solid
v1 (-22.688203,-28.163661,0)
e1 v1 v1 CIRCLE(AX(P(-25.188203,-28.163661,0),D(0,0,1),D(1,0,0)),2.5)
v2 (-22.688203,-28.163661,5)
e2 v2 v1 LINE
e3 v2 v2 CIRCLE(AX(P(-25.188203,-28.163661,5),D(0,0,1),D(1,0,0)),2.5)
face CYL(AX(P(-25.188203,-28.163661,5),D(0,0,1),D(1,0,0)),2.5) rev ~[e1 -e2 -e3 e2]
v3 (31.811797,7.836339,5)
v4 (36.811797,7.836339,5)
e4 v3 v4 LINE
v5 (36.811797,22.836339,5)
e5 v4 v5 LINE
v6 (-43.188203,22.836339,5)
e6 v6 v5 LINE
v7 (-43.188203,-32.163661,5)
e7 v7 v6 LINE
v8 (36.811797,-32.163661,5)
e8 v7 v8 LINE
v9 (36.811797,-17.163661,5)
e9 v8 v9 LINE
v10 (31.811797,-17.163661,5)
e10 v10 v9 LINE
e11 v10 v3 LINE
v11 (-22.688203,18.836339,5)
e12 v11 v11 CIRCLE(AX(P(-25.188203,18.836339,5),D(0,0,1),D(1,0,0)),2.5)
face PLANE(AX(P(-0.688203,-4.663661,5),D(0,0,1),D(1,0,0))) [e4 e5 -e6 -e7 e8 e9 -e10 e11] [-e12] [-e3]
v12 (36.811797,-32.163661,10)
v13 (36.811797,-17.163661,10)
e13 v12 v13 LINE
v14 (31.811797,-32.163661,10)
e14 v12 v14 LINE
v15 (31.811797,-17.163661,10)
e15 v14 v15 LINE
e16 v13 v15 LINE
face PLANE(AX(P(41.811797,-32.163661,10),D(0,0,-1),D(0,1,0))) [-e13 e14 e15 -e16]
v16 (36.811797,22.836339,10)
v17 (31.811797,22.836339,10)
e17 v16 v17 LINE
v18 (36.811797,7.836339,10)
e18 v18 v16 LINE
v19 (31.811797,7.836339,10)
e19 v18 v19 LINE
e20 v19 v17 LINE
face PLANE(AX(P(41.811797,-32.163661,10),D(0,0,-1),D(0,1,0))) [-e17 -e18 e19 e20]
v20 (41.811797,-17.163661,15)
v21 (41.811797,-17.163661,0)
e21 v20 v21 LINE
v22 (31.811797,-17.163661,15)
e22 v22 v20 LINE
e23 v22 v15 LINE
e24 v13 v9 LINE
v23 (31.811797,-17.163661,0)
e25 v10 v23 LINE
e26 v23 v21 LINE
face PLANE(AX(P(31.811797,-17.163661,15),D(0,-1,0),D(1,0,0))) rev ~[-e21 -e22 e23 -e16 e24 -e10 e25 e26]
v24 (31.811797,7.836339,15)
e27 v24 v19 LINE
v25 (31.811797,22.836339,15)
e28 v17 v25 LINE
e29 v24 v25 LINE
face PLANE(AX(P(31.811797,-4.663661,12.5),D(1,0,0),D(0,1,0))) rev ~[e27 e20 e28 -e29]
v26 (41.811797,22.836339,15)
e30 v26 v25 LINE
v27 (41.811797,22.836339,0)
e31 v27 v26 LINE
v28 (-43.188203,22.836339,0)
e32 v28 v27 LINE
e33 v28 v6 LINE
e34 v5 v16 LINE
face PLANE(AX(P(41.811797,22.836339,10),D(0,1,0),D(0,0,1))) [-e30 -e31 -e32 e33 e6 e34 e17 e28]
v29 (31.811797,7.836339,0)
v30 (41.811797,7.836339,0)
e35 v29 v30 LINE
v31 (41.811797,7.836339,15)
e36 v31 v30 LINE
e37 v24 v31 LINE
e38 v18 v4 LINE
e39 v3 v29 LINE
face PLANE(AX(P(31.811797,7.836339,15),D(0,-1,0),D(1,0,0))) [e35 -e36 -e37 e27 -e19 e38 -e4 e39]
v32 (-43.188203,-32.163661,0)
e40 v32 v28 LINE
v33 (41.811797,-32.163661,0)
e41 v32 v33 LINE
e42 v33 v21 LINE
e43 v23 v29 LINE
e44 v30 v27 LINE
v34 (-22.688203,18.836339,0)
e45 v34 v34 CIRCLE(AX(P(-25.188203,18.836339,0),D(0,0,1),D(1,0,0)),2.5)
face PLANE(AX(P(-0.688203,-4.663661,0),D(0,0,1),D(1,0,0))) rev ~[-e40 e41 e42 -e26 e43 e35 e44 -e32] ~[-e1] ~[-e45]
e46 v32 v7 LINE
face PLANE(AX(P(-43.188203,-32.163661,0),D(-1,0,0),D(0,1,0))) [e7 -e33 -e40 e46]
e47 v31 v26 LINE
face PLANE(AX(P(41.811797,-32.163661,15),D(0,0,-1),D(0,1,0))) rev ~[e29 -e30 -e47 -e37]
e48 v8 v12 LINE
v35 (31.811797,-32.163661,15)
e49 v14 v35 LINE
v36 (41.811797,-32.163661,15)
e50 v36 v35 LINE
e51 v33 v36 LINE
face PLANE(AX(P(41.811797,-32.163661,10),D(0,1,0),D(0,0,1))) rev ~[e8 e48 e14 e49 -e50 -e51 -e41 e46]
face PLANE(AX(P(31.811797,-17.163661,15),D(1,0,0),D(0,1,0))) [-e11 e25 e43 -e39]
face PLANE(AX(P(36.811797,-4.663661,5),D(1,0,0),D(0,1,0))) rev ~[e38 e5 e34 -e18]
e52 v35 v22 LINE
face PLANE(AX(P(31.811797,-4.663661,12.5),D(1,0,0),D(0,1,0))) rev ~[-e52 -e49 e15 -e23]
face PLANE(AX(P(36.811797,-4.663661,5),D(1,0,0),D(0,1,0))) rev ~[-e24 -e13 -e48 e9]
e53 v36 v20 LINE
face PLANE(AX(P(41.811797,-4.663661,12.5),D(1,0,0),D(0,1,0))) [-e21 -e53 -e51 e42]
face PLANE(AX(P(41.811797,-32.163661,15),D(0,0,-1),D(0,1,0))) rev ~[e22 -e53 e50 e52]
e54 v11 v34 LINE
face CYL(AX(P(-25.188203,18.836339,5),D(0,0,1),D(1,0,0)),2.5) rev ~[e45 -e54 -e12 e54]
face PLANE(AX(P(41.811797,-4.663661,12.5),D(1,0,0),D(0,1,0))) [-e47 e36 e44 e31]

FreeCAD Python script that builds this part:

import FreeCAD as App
import Part
import Sketcher
from FreeCAD import Vector
Q = App.Units.Quantity


def add_polygon(sketch, points):
    """Adds a closed chain of lines whose ends are joined by coincident constraints."""
    first, n = sketch.GeometryCount, len(points)
    for a, b in zip(points, points[1:] + points[:1]):
        sketch.addGeometry(Part.LineSegment(App.Vector(*a, 0), App.Vector(*b, 0)), False)
    for i in range(n):
        sketch.addConstraint(Sketcher.Constraint("Coincident", first + i, 2, first + (i + 1) % n, 1))

doc = App.newDocument("Part")
body = doc.addObject("PartDesign::Body", "Body")

# Sketch on XY plane
sketch1 = doc.addObject("Sketcher::SketchObject", "Sketch")
body.addObject(sketch1)
sketch1.AttachmentSupport = (doc.XY_Plane, [""])
sketch1.MapMode = "FlatFace"
add_polygon(sketch1, [(-43, 23), (-43, -32), (42, -32), (42, 23)])  # lines 0-3
sketch1.addConstraint([
    Sketcher.Constraint("Vertical", 0),
    Sketcher.Constraint("Horizontal", 1),
    Sketcher.Constraint("Vertical", 2),
    Sketcher.Constraint("Horizontal", 3),
    Sketcher.Constraint("DistanceX", 1, 1, 1, 2, Q("85 mm")),
    Sketcher.Constraint("DistanceY", 0, 2, 0, 1, Q("55 mm")),
    Sketcher.Constraint("DistanceY", 0, 2, -1, 1, Q("32.163661 mm")),
    Sketcher.Constraint("DistanceX", 0, 2, -1, 1, Q("43.188203 mm")),
])
pad1 = doc.addObject("PartDesign::Pad", "Pad")
body.addObject(pad1)
pad1.Profile = sketch1
pad1.Length = 5

# Sketch on YZ plane
sketch2 = doc.addObject("Sketcher::SketchObject", "Sketch001")
body.addObject(sketch2)
sketch2.AttachmentSupport = (doc.YZ_Plane, [""])
sketch2.MapMode = "FlatFace"
sketch2.AttachmentOffset = App.Placement(Vector(0, 0, 41.811797), App.Rotation())
add_polygon(sketch2, [(-32, 10), (-32, 0), (23, 0), (23, 10)])  # lines 0-3
sketch2.addConstraint([
    Sketcher.Constraint("Vertical", 0),
    Sketcher.Constraint("Horizontal", 1),
    Sketcher.Constraint("Vertical", 2),
    Sketcher.Constraint("Horizontal", 3),
    Sketcher.Constraint("PointOnObject", 0, 2, -1),
    Sketcher.Constraint("DistanceX", 1, 1, 1, 2, Q("55 mm")),
    Sketcher.Constraint("DistanceY", 0, 2, 0, 1, Q("10 mm")),
    Sketcher.Constraint("DistanceX", 0, 2, -1, 1, Q("32.163661 mm")),
])
pad2 = doc.addObject("PartDesign::Pad", "Pad001")
body.addObject(pad2)
pad2.Profile = sketch2
pad2.Length = 5
pad2.Reversed = True

# Sketch on YZ plane
sketch3 = doc.addObject("Sketcher::SketchObject", "Sketch002")
body.addObject(sketch3)
sketch3.AttachmentSupport = (doc.YZ_Plane, [""])
sketch3.MapMode = "FlatFace"
sketch3.AttachmentOffset = App.Placement(Vector(0, 0, 41.811797), App.Rotation())
add_polygon(sketch3, [(-32, 15), (-32, 10), (23, 10), (23, 15)])  # lines 0-3
sketch3.addConstraint([
    Sketcher.Constraint("Vertical", 0),
    Sketcher.Constraint("Horizontal", 1),
    Sketcher.Constraint("Vertical", 2),
    Sketcher.Constraint("Horizontal", 3),
    Sketcher.Constraint("DistanceX", 1, 1, 1, 2, Q("55 mm")),
    Sketcher.Constraint("DistanceY", 0, 2, 0, 1, Q("5 mm")),
    Sketcher.Constraint("DistanceY", -1, 1, 0, 2, Q("10 mm")),
    Sketcher.Constraint("DistanceX", 0, 2, -1, 1, Q("32.163661 mm")),
])
pad3 = doc.addObject("PartDesign::Pad", "Pad002")
body.addObject(pad3)
pad3.Profile = sketch3
pad3.Length = 10
pad3.Reversed = True

# Sketch on XY plane
sketch4 = doc.addObject("Sketcher::SketchObject", "Sketch003")
body.addObject(sketch4)
sketch4.AttachmentSupport = (doc.XY_Plane, [""])
sketch4.MapMode = "FlatFace"
sketch4.AttachmentOffset = App.Placement(Vector(0, 0, 15), App.Rotation())
add_polygon(sketch4, [(32, 8), (32, -17), (42, -17), (42, 8)])  # lines 0-3
sketch4.addConstraint([
    Sketcher.Constraint("Vertical", 0),
    Sketcher.Constraint("Horizontal", 1),
    Sketcher.Constraint("Vertical", 2),
    Sketcher.Constraint("Horizontal", 3),
    Sketcher.Constraint("DistanceX", 1, 1, 1, 2, Q("10 mm")),
    Sketcher.Constraint("DistanceY", 0, 2, 0, 1, Q("25 mm")),
    Sketcher.Constraint("DistanceY", 0, 2, -1, 1, Q("17.163661 mm")),
    Sketcher.Constraint("DistanceX", -1, 1, 0, 2, Q("31.811797 mm")),
])
pocket1 = doc.addObject("PartDesign::Pocket", "Pocket")
body.addObject(pocket1)
pocket1.Profile = sketch4
pocket1.Length = 23.6

# Sketch on XY plane
sketch5 = doc.addObject("Sketcher::SketchObject", "Sketch004")
body.addObject(sketch5)
sketch5.AttachmentSupport = (doc.XY_Plane, [""])
sketch5.MapMode = "FlatFace"
sketch5.AttachmentOffset = App.Placement(Vector(0, 0, 5), App.Rotation())
sketch5.addGeometry([
    Part.Circle(Vector(-25.2, -28.2, 0), Vector(0, 0, 1), 2.5),
    Part.Circle(Vector(-25.2, 18.8, 0), Vector(0, 0, 1), 2.5),
], False)
sketch5.addConstraint([
    Sketcher.Constraint("Equal", 0, 1),
    Sketcher.Constraint("Vertical", 0, 3, 1, 3),
    Sketcher.Constraint("Diameter", 0, Q("5 mm")),
    Sketcher.Constraint("DistanceY", 0, 3, 1, 3, Q("47 mm")),
    Sketcher.Constraint("DistanceY", 0, 3, -1, 1, Q("28.163661 mm")),
    Sketcher.Constraint("DistanceX", 0, 3, -1, 1, Q("25.188203 mm")),
])
pocket2 = doc.addObject("PartDesign::Pocket", "Pocket001")
body.addObject(pocket2)
pocket2.Profile = sketch5
pocket2.Length = 25

doc.recompute()
